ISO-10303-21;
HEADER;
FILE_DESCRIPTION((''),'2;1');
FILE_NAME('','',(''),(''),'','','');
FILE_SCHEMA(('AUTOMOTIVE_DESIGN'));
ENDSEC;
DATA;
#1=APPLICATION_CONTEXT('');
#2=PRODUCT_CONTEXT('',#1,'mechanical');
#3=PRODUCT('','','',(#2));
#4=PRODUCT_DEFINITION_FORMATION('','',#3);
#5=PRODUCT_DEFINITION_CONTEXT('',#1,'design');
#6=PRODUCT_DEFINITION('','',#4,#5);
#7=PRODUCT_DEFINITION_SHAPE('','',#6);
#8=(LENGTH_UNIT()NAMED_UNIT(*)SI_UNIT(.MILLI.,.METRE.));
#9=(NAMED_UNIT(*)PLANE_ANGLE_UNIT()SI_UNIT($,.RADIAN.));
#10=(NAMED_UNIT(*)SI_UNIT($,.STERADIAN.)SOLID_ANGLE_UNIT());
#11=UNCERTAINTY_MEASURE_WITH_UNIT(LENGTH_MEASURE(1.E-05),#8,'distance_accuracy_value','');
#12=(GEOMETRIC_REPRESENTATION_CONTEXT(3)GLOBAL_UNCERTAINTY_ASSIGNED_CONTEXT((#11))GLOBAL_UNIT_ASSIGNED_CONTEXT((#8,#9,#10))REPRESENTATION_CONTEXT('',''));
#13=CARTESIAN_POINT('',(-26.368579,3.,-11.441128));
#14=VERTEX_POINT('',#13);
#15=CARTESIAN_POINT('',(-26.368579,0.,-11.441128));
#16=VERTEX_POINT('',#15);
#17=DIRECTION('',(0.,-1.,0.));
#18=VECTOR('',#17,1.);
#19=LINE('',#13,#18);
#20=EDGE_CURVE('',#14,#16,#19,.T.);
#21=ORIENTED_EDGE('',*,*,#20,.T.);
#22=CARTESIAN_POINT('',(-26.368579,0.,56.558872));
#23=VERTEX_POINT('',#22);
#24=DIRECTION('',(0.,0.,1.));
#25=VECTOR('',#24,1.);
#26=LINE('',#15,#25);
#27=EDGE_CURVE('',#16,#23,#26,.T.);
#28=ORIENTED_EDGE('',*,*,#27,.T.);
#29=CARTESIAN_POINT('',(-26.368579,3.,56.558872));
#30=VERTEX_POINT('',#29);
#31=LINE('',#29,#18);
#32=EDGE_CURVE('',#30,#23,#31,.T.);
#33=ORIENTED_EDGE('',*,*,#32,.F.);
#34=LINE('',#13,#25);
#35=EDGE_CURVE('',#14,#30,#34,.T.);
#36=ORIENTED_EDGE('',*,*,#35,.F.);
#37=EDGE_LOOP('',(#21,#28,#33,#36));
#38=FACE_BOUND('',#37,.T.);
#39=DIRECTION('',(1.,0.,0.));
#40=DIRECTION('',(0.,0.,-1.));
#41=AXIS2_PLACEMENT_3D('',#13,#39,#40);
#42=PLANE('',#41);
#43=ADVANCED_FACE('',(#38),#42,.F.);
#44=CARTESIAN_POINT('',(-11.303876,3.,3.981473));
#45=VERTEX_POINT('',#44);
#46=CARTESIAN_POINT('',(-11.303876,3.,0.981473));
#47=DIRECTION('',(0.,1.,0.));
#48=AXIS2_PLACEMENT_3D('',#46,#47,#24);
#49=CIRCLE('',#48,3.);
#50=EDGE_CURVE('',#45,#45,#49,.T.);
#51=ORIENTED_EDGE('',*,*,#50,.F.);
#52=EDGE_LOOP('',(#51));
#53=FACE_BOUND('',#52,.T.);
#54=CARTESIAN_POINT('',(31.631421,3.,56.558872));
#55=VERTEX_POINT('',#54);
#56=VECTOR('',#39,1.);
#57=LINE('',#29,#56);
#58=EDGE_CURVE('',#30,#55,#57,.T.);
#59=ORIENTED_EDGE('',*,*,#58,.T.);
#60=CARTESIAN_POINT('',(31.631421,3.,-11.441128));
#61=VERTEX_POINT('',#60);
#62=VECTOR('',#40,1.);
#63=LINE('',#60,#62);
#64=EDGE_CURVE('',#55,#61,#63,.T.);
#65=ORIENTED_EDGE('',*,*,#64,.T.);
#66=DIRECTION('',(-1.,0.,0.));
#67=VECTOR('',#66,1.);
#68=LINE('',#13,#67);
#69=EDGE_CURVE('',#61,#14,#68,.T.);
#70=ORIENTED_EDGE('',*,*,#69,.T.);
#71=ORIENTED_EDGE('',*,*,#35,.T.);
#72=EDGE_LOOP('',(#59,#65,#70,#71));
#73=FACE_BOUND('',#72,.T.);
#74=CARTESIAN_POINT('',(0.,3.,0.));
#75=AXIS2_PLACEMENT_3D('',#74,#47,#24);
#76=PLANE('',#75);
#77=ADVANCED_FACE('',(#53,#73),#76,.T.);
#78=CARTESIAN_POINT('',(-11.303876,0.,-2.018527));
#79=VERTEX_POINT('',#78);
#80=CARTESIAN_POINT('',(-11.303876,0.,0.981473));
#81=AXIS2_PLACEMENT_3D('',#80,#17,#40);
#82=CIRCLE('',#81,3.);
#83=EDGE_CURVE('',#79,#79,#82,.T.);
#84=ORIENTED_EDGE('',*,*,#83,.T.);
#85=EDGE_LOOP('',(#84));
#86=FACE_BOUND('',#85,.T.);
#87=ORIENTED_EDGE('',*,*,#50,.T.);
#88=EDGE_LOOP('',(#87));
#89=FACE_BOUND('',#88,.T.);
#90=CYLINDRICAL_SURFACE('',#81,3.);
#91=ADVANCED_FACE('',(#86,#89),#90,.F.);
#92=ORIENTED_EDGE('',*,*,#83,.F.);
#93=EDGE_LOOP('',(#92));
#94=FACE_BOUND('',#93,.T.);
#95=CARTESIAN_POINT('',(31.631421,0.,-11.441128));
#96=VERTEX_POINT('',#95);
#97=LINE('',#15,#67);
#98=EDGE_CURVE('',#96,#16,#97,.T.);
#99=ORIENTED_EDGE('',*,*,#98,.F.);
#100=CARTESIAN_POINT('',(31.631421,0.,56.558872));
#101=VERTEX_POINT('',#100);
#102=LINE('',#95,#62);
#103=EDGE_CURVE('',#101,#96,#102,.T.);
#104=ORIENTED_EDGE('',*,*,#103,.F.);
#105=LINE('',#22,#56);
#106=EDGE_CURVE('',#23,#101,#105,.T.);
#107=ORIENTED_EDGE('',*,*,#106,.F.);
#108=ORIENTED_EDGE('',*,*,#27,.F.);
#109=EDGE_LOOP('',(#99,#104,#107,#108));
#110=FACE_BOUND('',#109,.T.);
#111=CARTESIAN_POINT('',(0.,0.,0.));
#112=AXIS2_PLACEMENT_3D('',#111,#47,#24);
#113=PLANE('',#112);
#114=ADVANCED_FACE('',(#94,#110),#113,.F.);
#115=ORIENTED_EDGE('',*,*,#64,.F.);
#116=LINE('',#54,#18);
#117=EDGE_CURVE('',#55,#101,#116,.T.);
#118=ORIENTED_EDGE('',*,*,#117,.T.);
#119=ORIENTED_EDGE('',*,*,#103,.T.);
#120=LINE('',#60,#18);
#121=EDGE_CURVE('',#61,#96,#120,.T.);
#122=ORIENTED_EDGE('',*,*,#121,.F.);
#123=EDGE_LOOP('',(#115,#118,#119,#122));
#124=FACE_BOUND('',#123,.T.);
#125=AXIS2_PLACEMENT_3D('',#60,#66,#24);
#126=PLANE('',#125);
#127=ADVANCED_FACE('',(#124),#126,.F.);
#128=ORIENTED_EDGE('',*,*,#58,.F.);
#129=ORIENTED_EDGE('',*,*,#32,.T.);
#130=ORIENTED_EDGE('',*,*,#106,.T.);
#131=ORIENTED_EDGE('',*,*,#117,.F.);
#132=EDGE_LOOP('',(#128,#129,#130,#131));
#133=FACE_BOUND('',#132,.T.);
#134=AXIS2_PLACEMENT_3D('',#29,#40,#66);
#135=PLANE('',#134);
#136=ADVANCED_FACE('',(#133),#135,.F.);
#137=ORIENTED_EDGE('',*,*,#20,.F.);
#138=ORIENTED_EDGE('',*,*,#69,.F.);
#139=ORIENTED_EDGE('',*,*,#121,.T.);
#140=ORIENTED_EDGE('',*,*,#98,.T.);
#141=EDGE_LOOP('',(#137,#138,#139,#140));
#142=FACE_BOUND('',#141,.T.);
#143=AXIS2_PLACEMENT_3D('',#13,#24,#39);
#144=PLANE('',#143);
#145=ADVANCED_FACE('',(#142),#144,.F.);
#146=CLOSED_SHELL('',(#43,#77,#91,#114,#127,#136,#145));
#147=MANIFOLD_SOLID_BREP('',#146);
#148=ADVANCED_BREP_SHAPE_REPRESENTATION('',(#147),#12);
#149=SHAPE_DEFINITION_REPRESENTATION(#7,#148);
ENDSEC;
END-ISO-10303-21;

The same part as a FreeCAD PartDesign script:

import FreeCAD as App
import Part
import Sketcher

doc = App.newDocument("Part")
params = doc.addObject("Spreadsheet::Sheet", "Params")
for row, (alias, value) in enumerate([
    ("sketch1_width", "58 mm"),
    ("sketch1_height", "68 mm"),
    ("pad1_length", "3 mm"),
    ("sketch2_diameter", "6 mm"),
    ("hole_diameter", "6 mm"),
    ("hole_depth", "3 mm"),
], start=1):
    params.set(f"A{row}", alias)
    params.set(f"B{row}", "=" + value)
    params.setAlias(f"B{row}", alias)

body = doc.addObject("PartDesign::Body", "Body")

sketch1 = body.newObject("Sketcher::SketchObject", "Sketch")
sketch1.AttachmentSupport = (doc.getObject("XZ_Plane"), [""])
sketch1.MapMode = "FlatFace"
sketch1.addGeometry(Part.LineSegment(App.Vector(-26.368579, -11.441128, 0), App.Vector(-26.368579, 56.558872, 0)), False)
sketch1.addGeometry(Part.LineSegment(App.Vector(-26.368579, 56.558872, 0), App.Vector(31.631421, 56.558872, 0)), False)
sketch1.addGeometry(Part.LineSegment(App.Vector(31.631421, 56.558872, 0), App.Vector(31.631421, -11.441128, 0)), False)
sketch1.addGeometry(Part.LineSegment(App.Vector(31.631421, -11.441128, 0), App.Vector(-26.368579, -11.441128, 0)), False)
sketch1.addConstraint(Sketcher.Constraint("Coincident", 0, 2, 1, 1))
sketch1.addConstraint(Sketcher.Constraint("Coincident", 1, 2, 2, 1))
sketch1.addConstraint(Sketcher.Constraint("Coincident", 2, 2, 3, 1))
sketch1.addConstraint(Sketcher.Constraint("Coincident", 3, 2, 0, 1))
sketch1.addConstraint(Sketcher.Constraint("Vertical", 0))
sketch1.addConstraint(Sketcher.Constraint("Horizontal", 1))
sketch1.addConstraint(Sketcher.Constraint("Vertical", 2))
sketch1.addConstraint(Sketcher.Constraint("Horizontal", 3))
sketch1.addConstraint(Sketcher.Constraint("DistanceX", 1, 1, 1, 2, 58.0))
sketch1.addConstraint(Sketcher.Constraint("DistanceY", 0, 1, 0, 2, 68.0))
sketch1.addConstraint(Sketcher.Constraint("DistanceX", 0, 2, -1, 1, 26.368579))
sketch1.addConstraint(Sketcher.Constraint("DistanceY", -1, 1, 0, 2, 56.558872))
sketch1.setExpression("Constraints[8]", "Params.sketch1_width")
sketch1.setExpression("Constraints[9]", "Params.sketch1_height")
pad1 = body.newObject("PartDesign::Pad", "Pad")
pad1.Profile = sketch1
pad1.setExpression("Length", "Params.pad1_length")
pad1.Reversed = True

sketch2 = body.newObject("Sketcher::SketchObject", "Sketch001")
sketch2.AttachmentSupport = (doc.getObject("XZ_Plane"), [""])
sketch2.MapMode = "FlatFace"
sketch2.addGeometry(Part.Circle(App.Vector(-11.303876, 0.981473, 0), App.Vector(0, 0, 1), 3), False)
sketch2.addConstraint(Sketcher.Constraint("Diameter", 0, 6.0))
sketch2.addConstraint(Sketcher.Constraint("DistanceX", 0, 3, -1, 1, 11.303876))
sketch2.addConstraint(Sketcher.Constraint("DistanceY", -1, 1, 0, 3, 0.981473))
sketch2.setExpression("Constraints[0]", "Params.sketch2_diameter")
doc.recompute()
hole = body.newObject("PartDesign::Hole", "Hole")
hole.Profile = sketch2
hole.ThreadType = "None"
hole.setExpression("Diameter", "Params.hole_diameter")
hole.DepthType = "Dimension"
hole.setExpression("Depth", "Params.hole_depth")
hole.DrillPoint = "Flat"

doc.recompute()
